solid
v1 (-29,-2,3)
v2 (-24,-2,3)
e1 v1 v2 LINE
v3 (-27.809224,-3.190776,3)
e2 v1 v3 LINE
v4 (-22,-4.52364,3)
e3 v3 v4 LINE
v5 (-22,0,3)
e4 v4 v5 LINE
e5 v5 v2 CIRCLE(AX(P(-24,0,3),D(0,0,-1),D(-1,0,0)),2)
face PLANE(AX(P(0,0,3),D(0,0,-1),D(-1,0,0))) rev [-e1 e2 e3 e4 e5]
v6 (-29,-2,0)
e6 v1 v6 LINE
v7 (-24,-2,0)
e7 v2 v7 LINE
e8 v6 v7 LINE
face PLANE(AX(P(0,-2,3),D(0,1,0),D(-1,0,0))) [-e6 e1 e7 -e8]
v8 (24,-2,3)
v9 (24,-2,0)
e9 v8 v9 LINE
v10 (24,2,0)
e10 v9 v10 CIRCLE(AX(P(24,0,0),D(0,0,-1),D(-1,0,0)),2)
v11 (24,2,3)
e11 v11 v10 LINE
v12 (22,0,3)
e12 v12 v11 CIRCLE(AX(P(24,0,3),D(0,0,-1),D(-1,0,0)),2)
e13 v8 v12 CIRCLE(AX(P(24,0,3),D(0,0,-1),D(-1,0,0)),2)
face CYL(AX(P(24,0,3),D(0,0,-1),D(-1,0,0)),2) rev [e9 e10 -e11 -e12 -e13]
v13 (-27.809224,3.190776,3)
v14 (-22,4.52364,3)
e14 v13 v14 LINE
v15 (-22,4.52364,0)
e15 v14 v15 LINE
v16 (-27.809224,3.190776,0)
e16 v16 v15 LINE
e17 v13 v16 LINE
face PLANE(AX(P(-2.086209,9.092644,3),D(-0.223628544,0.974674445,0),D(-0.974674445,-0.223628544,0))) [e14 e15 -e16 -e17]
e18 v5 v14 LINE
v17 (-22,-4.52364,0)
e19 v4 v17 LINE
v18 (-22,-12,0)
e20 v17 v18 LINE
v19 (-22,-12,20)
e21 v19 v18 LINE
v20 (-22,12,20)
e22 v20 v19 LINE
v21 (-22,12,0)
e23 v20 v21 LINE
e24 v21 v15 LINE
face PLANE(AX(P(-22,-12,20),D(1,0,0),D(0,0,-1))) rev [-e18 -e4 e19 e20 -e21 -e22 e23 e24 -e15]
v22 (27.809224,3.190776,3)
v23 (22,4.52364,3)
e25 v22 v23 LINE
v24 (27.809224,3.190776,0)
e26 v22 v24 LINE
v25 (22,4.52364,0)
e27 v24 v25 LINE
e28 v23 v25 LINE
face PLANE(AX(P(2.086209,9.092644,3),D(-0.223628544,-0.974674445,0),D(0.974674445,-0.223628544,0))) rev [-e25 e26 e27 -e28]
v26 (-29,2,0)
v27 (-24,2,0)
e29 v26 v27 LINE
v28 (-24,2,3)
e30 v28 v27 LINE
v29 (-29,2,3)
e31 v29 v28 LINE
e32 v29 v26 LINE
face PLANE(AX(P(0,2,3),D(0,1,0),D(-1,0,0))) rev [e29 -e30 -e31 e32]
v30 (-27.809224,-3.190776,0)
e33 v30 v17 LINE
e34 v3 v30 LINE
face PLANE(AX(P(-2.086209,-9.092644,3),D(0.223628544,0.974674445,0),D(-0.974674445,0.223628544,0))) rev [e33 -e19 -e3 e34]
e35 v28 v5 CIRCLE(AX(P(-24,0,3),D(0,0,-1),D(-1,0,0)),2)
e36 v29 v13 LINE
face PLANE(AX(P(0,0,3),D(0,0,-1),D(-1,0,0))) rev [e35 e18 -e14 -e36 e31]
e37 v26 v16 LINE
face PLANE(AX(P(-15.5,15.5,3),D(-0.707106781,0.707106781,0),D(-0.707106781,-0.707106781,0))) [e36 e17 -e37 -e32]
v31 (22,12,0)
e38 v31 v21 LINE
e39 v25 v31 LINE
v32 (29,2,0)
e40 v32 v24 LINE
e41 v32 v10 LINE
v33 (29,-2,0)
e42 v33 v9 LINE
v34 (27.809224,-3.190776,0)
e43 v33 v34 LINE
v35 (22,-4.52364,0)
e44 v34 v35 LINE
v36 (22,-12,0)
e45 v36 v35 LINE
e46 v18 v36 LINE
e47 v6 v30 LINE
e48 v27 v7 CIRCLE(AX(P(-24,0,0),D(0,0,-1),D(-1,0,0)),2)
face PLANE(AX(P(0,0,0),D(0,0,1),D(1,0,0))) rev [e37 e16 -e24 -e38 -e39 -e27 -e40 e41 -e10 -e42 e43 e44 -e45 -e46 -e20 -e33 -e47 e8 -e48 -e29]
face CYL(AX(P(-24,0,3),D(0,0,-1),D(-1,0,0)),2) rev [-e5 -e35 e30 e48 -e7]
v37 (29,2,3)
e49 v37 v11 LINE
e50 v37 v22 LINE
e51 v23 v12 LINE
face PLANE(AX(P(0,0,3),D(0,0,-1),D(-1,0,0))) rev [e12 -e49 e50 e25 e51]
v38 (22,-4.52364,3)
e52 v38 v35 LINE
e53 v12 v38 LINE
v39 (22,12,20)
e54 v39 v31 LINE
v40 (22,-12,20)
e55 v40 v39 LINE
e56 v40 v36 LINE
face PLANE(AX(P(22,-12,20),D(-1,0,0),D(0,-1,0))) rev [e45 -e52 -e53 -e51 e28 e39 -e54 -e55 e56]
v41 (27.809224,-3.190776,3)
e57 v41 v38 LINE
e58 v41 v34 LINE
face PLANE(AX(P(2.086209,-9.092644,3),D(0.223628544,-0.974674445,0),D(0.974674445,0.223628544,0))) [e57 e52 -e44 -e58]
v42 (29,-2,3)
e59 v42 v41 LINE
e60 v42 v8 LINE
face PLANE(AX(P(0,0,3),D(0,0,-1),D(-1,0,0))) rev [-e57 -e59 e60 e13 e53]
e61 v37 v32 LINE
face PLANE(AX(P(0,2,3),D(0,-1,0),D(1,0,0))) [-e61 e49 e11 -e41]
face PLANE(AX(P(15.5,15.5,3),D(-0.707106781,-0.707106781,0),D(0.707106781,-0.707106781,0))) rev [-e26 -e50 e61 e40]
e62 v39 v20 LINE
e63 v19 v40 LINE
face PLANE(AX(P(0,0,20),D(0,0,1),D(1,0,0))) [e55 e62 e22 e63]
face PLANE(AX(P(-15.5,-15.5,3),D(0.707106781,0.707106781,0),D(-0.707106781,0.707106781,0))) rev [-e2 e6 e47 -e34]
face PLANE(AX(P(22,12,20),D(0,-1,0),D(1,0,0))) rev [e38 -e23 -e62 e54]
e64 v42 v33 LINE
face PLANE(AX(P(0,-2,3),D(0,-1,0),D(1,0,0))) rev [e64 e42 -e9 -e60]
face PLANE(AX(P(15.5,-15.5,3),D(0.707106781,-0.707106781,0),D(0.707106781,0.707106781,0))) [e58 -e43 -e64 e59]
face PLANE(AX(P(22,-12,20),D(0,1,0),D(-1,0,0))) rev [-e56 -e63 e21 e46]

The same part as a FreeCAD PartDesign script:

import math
import FreeCAD as App
import Part
import Sketcher
from FreeCAD import Vector
Q = App.Units.Quantity


def add_polygon(sketch, points):
    """Adds a closed chain of lines whose ends are joined by coincident constraints."""
    first, n = sketch.GeometryCount, len(points)
    for a, b in zip(points, points[1:] + points[:1]):
        sketch.addGeometry(Part.LineSegment(App.Vector(*a, 0), App.Vector(*b, 0)), False)
    for i in range(n):
        sketch.addConstraint(Sketcher.Constraint("Coincident", first + i, 2, first + (i + 1) % n, 1))

doc = App.newDocument("Part")
body = doc.addObject("PartDesign::Body", "Body")

# Sketch on XY plane
sketch1 = body.newObject("Sketcher::SketchObject", "Sketch")
sketch1.AttachmentSupport = (doc.getObject("XY_Plane"), [""])
sketch1.MapMode = "FlatFace"
add_polygon(sketch1, [(-22, 12), (-22, -12), (22, -12), (22, 12)])  # lines 0-3
sketch1.addConstraint([
    Sketcher.Constraint("Vertical", 0),
    Sketcher.Constraint("Horizontal", 1),
    Sketcher.Constraint("Vertical", 2),
    Sketcher.Constraint("Horizontal", 3),
    Sketcher.Constraint("Symmetric", 0, 2, 2, 2, -1, 1),
    Sketcher.Constraint("DistanceX", 1, 1, 1, 2, Q("44 mm")),
    Sketcher.Constraint("DistanceY", 0, 2, 0, 1, Q("24 mm")),
])
pad1 = body.newObject("PartDesign::Pad", "Pad")
pad1.Profile = sketch1
pad1.Length = 20

# Sketch on XY plane
sketch2 = body.newObject("Sketcher::SketchObject", "Sketch001")
sketch2.AttachmentSupport = (doc.getObject("XY_Plane"), [""])
sketch2.MapMode = "FlatFace"
sketch2.addGeometry([
    Part.LineSegment(Vector(-22, 4.5, 0), Vector(-22, 0, 0)),  # 0
    Part.ArcOfCircle(Part.Circle(Vector(-24, 0, 0), Vector(0, 0, 1), 2), math.radians(0), math.radians(90)),  # 1
    Part.LineSegment(Vector(-24, 2, 0), Vector(-29, 2, 0)),  # 2
    Part.LineSegment(Vector(-29, 2, 0), Vector(-27.8, 3.2, 0)),  # 3
    Part.LineSegment(Vector(-27.8, 3.2, 0), Vector(-22, 4.5, 0)),  # 4
    Part.LineSegment(Vector(-22, -4.5, 0), Vector(-27.8, -3.2, 0)),  # 5
    Part.LineSegment(Vector(-27.8, -3.2, 0), Vector(-29, -2, 0)),  # 6
    Part.LineSegment(Vector(-29, -2, 0), Vector(-24, -2, 0)),  # 7
    Part.ArcOfCircle(Part.Circle(Vector(-24, 0, 0), Vector(0, 0, 1), 2), math.radians(-90), math.radians(0)),  # 8
    Part.LineSegment(Vector(-22, 0, 0), Vector(-22, -4.5, 0)),  # 9
    Part.LineSegment(Vector(27.8, 3.2, 0), Vector(29, 2, 0)),  # 10
    Part.LineSegment(Vector(29, 2, 0), Vector(24, 2, 0)),  # 11
    Part.ArcOfCircle(Part.Circle(Vector(24, 0, 0), Vector(0, 0, 1), 2), math.radians(90), math.radians(180)),  # 12
    Part.LineSegment(Vector(22, 0, 0), Vector(22, 4.5, 0)),  # 13
    Part.LineSegment(Vector(22, 4.5, 0), Vector(27.8, 3.2, 0)),  # 14
    Part.LineSegment(Vector(22, -4.5, 0), Vector(22, 0, 0)),  # 15
    Part.ArcOfCircle(Part.Circle(Vector(24, 0, 0), Vector(0, 0, 1), 2), math.radians(180), math.radians(270)),  # 16
    Part.LineSegment(Vector(24, -2, 0), Vector(29, -2, 0)),  # 17
    Part.LineSegment(Vector(29, -2, 0), Vector(27.8, -3.2, 0)),  # 18
    Part.LineSegment(Vector(27.8, -3.2, 0), Vector(22, -4.5, 0)),  # 19
], False)
sketch2.addConstraint([
    Sketcher.Constraint("Tangent", 0, 2, 1, 1),
    Sketcher.Constraint("Tangent", 1, 2, 2, 1),
    Sketcher.Constraint("Coincident", 2, 2, 3, 1),
    Sketcher.Constraint("Coincident", 3, 2, 4, 1),
    Sketcher.Constraint("Coincident", 4, 2, 0, 1),
    Sketcher.Constraint("Coincident", 5, 2, 6, 1),
    Sketcher.Constraint("Coincident", 6, 2, 7, 1),
    Sketcher.Constraint("Tangent", 7, 2, 8, 1),
    Sketcher.Constraint("Tangent", 8, 2, 9, 1),
    Sketcher.Constraint("Coincident", 9, 2, 5, 1),
    Sketcher.Constraint("Coincident", 10, 2, 11, 1),
    Sketcher.Constraint("Tangent", 11, 2, 12, 1),
    Sketcher.Constraint("Tangent", 12, 2, 13, 1),
    Sketcher.Constraint("Coincident", 13, 2, 14, 1),
    Sketcher.Constraint("Coincident", 14, 2, 10, 1),
    Sketcher.Constraint("Tangent", 15, 2, 16, 1),
    Sketcher.Constraint("Tangent", 16, 2, 17, 1),
    Sketcher.Constraint("Coincident", 17, 2, 18, 1),
    Sketcher.Constraint("Coincident", 18, 2, 19, 1),
    Sketcher.Constraint("Coincident", 19, 2, 15, 1),
    Sketcher.Constraint("Vertical", 0),
    Sketcher.Constraint("Horizontal", 2),
    Sketcher.Constraint("Horizontal", 7),
    Sketcher.Constraint("Vertical", 9),
    Sketcher.Constraint("Horizontal", 11),
    Sketcher.Constraint("Vertical", 13),
    Sketcher.Constraint("Vertical", 15),
    Sketcher.Constraint("Horizontal", 17),
    Sketcher.Constraint("Coincident", 8, 3, 1, 3),
    Sketcher.Constraint("Coincident", 16, 3, 12, 3),
    Sketcher.Constraint("Equal", 1, 8),
    Sketcher.Constraint("Equal", 8, 12),
    Sketcher.Constraint("Equal", 12, 16),
    Sketcher.Constraint("Symmetric", 1, 3, 12, 3, -1, 1),
    Sketcher.Constraint("Symmetric", 5, 2, 14, 2, -1, 1),
    Sketcher.Constraint("Symmetric", 3, 2, 18, 2, -1, 1),
    Sketcher.Constraint("Symmetric", 2, 2, 10, 2, -2),
    Sketcher.Constraint("Symmetric", 3, 2, 14, 2, -2),
    Sketcher.Constraint("Perpendicular", 3, 6),
    Sketcher.Constraint("Parallel", 6, 10),
    Sketcher.Constraint("Parallel", 5, 14),
    Sketcher.Constraint("Perpendicular", 10, 18),
    Sketcher.Constraint("Parallel", 4, 19),
    Sketcher.Constraint("Horizontal", 4, 2, 13, 2),
    Sketcher.Constraint("Radius", 1, Q("2 mm")),
    Sketcher.Constraint("DistanceX", 2, 2, 2, 1, Q("5 mm")),
    Sketcher.Constraint("DistanceX", 1, 3, -1, 1, Q("24 mm")),
    Sketcher.Constraint("DistanceY", 0, 2, 0, 1, Q("4.52364 mm")),
    Sketcher.Constraint("Distance", 3, Q("1.684012 mm")),
])
pad2 = body.newObject("PartDesign::Pad", "Pad001")
pad2.Profile = sketch2
pad2.Length = 3

doc.recompute()
